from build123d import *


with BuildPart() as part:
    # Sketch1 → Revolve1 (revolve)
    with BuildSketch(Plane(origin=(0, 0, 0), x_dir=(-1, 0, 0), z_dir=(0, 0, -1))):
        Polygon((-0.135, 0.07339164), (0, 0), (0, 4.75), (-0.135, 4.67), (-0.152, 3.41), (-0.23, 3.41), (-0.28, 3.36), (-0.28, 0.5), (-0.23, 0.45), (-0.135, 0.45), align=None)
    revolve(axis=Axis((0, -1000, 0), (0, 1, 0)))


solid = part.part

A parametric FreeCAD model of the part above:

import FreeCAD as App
import Part
import Sketcher
Q = App.Units.Quantity


def add_polygon(sketch, points):
    """Adds a closed chain of lines whose ends are joined by coincident constraints."""
    first, n = sketch.GeometryCount, len(points)
    for a, b in zip(points, points[1:] + points[:1]):
        sketch.addGeometry(Part.LineSegment(App.Vector(*a, 0), App.Vector(*b, 0)), False)
    for i in range(n):
        sketch.addConstraint(Sketcher.Constraint("Coincident", first + i, 2, first + (i + 1) % n, 1))

doc = App.newDocument("Part")
params = doc.addObject("Spreadsheet::Sheet", "Params")
for row, (alias, value) in enumerate([
    ("sketch1_height", "4.75 mm"),
    ("sketch1_height2", "2.86 mm"),
    ("revolution_angle", "360 deg"),
], start=1):
    params.set(f"A{row}", alias)
    params.set(f"B{row}", "=" + value)
    params.setAlias(f"B{row}", alias)

body = doc.addObject("PartDesign::Body", "Body")

sketch1 = body.newObject("Sketcher::SketchObject", "Sketch")
sketch1.AttachmentSupport = (doc.getObject("XY_Plane"), [""])
sketch1.MapMode = "FlatFace"
add_polygon(sketch1, [(0.14, 0.07), (0, 0), (0, 4.75), (0.14, 4.67), (0.15, 3.41), (0.23, 3.41), (0.28, 3.36), (0.28, 0.5), (0.23, 0.45), (0.14, 0.45)])
sketch1.addConstraint(Sketcher.Constraint("Vertical", 1))
sketch1.addConstraint(Sketcher.Constraint("Horizontal", 4))
sketch1.addConstraint(Sketcher.Constraint("Vertical", 6))
sketch1.addConstraint(Sketcher.Constraint("Horizontal", 8))
sketch1.addConstraint(Sketcher.Constraint("Vertical", 9))
sketch1.addConstraint(Sketcher.Constraint("Coincident", 0, 2, -1, 1))
sketch1.addConstraint(Sketcher.Constraint("Perpendicular", 5, 7))
sketch1.addConstraint(Sketcher.Constraint("Vertical", 4, 2, 7, 2))
sketch1.addConstraint(Sketcher.Constraint("Vertical", 2, 2, 8, 2))
sketch1.addConstraint(Sketcher.Constraint("Equal", 5, 7))
sketch1.addConstraint(Sketcher.Constraint("DistanceY", 1, 1, 1, 2, Q("4.75 mm")))
sketch1.addConstraint(Sketcher.Constraint("DistanceY", 6, 2, 6, 1, Q("2.86 mm")))
sketch1.addConstraint(Sketcher.Constraint("DistanceY", -1, 1, 6, 2, Q("0.5 mm")))
sketch1.addConstraint(Sketcher.Constraint("DistanceX", 4, 1, 4, 2, Q("0.078 mm")))
sketch1.addConstraint(Sketcher.Constraint("DistanceX", 8, 2, 8, 1, Q("0.095 mm")))
sketch1.addConstraint(Sketcher.Constraint("DistanceY", -1, 1, 2, 2, Q("4.67 mm")))
sketch1.addConstraint(Sketcher.Constraint("DistanceY", -1, 1, 3, 2, Q("3.41 mm")))
sketch1.addConstraint(Sketcher.Constraint("DistanceX", -1, 1, 4, 2, Q("0.23 mm")))
sketch1.addConstraint(Sketcher.Constraint("DistanceY", 9, 2, 9, 1, Q("0.376608 mm")))
sketch1.setExpression("Constraints[20]", "Params.sketch1_height")
sketch1.setExpression("Constraints[21]", "Params.sketch1_height2")
revolution = body.newObject("PartDesign::Revolution", "Revolution")
revolution.Profile = sketch1
revolution.ReferenceAxis = (sketch1, ["V_Axis"])
revolution.setExpression("Angle", "Params.revolution_angle")

doc.recompute()
